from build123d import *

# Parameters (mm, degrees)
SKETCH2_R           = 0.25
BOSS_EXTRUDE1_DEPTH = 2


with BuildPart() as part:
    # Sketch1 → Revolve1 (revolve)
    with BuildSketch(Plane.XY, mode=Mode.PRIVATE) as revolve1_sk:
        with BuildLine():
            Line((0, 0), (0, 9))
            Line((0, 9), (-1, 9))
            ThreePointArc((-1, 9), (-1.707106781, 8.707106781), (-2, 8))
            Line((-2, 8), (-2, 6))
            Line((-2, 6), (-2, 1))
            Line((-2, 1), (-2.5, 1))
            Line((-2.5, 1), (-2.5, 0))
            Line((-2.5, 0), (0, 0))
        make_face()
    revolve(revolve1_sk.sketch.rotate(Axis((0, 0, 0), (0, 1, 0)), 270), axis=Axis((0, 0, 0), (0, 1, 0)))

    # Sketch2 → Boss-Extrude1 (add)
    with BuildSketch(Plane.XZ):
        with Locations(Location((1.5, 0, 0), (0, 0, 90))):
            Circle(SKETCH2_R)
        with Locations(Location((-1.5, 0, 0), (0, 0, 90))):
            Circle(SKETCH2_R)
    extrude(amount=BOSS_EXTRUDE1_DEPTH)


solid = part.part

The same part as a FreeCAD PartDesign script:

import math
import FreeCAD as App
import Part
import Sketcher
from FreeCAD import Vector
Q = App.Units.Quantity

doc = App.newDocument("Part")
params = doc.addObject("Spreadsheet::Sheet", "Params")
for row, (alias, value) in enumerate([
    ("sketch1_radius", "1 mm"),
    ("sketch1_width", "1 mm"),
    ("sketch1_height", "9 mm"),
    ("sketch1_width2", "0.5 mm"),
    ("revolution_angle", "360 deg"),
    ("sketch2_diameter", "0.5 mm"),
    ("pad1_length", "2 mm"),
], start=1):
    params.set(f"A{row}", alias)
    params.set(f"B{row}", "=" + value)
    params.setAlias(f"B{row}", alias)

body = doc.addObject("PartDesign::Body", "Body")

# Sketch on XY plane
sketch1 = body.newObject("Sketcher::SketchObject", "Sketch")
sketch1.AttachmentSupport = (doc.getObject("XY_Plane"), [""])
sketch1.MapMode = "FlatFace"
sketch1.addGeometry([
    Part.LineSegment(Vector(0, 0, 0), Vector(0, 9, 0)),  # 0
    Part.LineSegment(Vector(0, 9, 0), Vector(-1, 9, 0)),  # 1
    Part.ArcOfCircle(Part.Circle(Vector(-1, 8, 0), Vector(0, 0, 1), 1), math.radians(90), math.radians(180)),  # 2
    Part.LineSegment(Vector(-2, 8, 0), Vector(-2, 1, 0)),  # 3
    Part.LineSegment(Vector(-2, 1, 0), Vector(-2.5, 1, 0)),  # 4
    Part.LineSegment(Vector(-2.5, 1, 0), Vector(-2.5, 0, 0)),  # 5
    Part.LineSegment(Vector(-2.5, 0, 0), Vector(0, 0, 0)),  # 6
], False)
sketch1.addConstraint([
    Sketcher.Constraint("Coincident", 0, 2, 1, 1),
    Sketcher.Constraint("Tangent", 1, 2, 2, 1),
    Sketcher.Constraint("Tangent", 2, 2, 3, 1),
    Sketcher.Constraint("Coincident", 3, 2, 4, 1),
    Sketcher.Constraint("Coincident", 4, 2, 5, 1),
    Sketcher.Constraint("Coincident", 5, 2, 6, 1),
    Sketcher.Constraint("Coincident", 6, 2, 0, 1),
    Sketcher.Constraint("Vertical", 0),
    Sketcher.Constraint("Horizontal", 1),
    Sketcher.Constraint("Vertical", 3),
    Sketcher.Constraint("Horizontal", 4),
    Sketcher.Constraint("Vertical", 5),
    Sketcher.Constraint("Horizontal", 6),
    Sketcher.Constraint("Coincident", 6, 2, -1, 1),
    Sketcher.Constraint("Equal", 1, 5),
    Sketcher.Constraint("Radius", 2, Q("1 mm")),
    Sketcher.Constraint("DistanceX", 1, 2, 1, 1, Q("1 mm")),
    Sketcher.Constraint("DistanceY", 0, 1, 0, 2, Q("9 mm")),
    Sketcher.Constraint("DistanceX", 4, 2, 4, 1, Q("0.5 mm")),
])
sketch1.setExpression("Constraints[15]", "Params.sketch1_radius")
sketch1.setExpression("Constraints[16]", "Params.sketch1_width")
sketch1.setExpression("Constraints[17]", "Params.sketch1_height")
sketch1.setExpression("Constraints[18]", "Params.sketch1_width2")
revolution = body.newObject("PartDesign::Revolution", "Revolution")
revolution.Profile = sketch1
revolution.ReferenceAxis = (sketch1, ["V_Axis"])
revolution.setExpression("Angle", "Params.revolution_angle")

# Sketch on XZ plane
sketch2 = body.newObject("Sketcher::SketchObject", "Sketch001")
sketch2.AttachmentSupport = (doc.getObject("XZ_Plane"), [""])
sketch2.MapMode = "FlatFace"
sketch2.addGeometry([
    Part.Circle(Vector(1.5, 0, 0), Vector(0, 0, 1), 0.25),
    Part.Circle(Vector(-1.5, 0, 0), Vector(0, 0, 1), 0.25),
], False)
sketch2.addConstraint([
    Sketcher.Constraint("Equal", 0, 1),
    Sketcher.Constraint("Symmetric", 0, 3, 1, 3, -1, 1),
    Sketcher.Constraint("PointOnObject", 0, 3, -1),
    Sketcher.Constraint("Diameter", 0, Q("0.5 mm")),
    Sketcher.Constraint("DistanceX", 1, 3, 0, 3, Q("3 mm")),
])
sketch2.setExpression("Constraints[3]", "Params.sketch2_diameter")
pad1 = body.newObject("PartDesign::Pad", "Pad")
pad1.Profile = sketch2
pad1.setExpression("Length", "Params.pad1_length")

doc.recompute()
